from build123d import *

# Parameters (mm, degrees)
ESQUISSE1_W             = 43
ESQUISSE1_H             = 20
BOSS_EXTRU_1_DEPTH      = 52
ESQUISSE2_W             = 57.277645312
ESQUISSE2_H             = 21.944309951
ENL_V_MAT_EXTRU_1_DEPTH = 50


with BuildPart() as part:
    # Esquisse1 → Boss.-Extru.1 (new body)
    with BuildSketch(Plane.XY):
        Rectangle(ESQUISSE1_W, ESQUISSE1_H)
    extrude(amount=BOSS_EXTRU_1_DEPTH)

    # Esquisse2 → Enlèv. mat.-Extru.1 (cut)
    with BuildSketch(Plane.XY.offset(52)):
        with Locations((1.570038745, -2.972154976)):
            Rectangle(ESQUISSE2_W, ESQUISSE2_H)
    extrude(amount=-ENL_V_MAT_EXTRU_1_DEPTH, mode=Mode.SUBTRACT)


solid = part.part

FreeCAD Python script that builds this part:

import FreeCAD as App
import Part
import Sketcher


def add_polygon(sketch, points):
    """Adds a closed chain of lines whose ends are joined by coincident constraints."""
    first, n = sketch.GeometryCount, len(points)
    for a, b in zip(points, points[1:] + points[:1]):
        sketch.addGeometry(Part.LineSegment(App.Vector(*a, 0), App.Vector(*b, 0)), False)
    for i in range(n):
        sketch.addConstraint(Sketcher.Constraint("Coincident", first + i, 2, first + (i + 1) % n, 1))

doc = App.newDocument("Part")
body = doc.addObject("PartDesign::Body", "Body")

# Sketch on XY plane
sketch1 = doc.addObject("Sketcher::SketchObject", "Sketch")
body.addObject(sketch1)
sketch1.AttachmentSupport = (doc.XY_Plane, [""])
sketch1.MapMode = "FlatFace"
add_polygon(sketch1, [(-22, 10), (-22, -10), (22, -10), (22, 10)])  # lines 0-3
sketch1.addConstraint([
    Sketcher.Constraint("Vertical", 0),
    Sketcher.Constraint("Horizontal", 1),
    Sketcher.Constraint("Vertical", 2),
    Sketcher.Constraint("Horizontal", 3),
    Sketcher.Constraint("Symmetric", 0, 2, 2, 2, -1, 1),
    Sketcher.Constraint("DistanceX", 1, 1, 1, 2, 43.0),
    Sketcher.Constraint("DistanceY", 0, 2, 0, 1, 20.0),
])
pad1 = doc.addObject("PartDesign::Pad", "Pad")
body.addObject(pad1)
pad1.Profile = sketch1
pad1.Length = 52

# Sketch on XY plane
sketch2 = doc.addObject("Sketcher::SketchObject", "Sketch001")
body.addObject(sketch2)
sketch2.AttachmentSupport = (doc.XY_Plane, [""])
sketch2.MapMode = "FlatFace"
sketch2.AttachmentOffset = App.Placement(App.Vector(0, 0, 52), App.Rotation())
add_polygon(sketch2, [(-27, 8), (-27, -14), (30, -14), (30, 8)])  # lines 0-3
sketch2.addConstraint([
    Sketcher.Constraint("Vertical", 0),
    Sketcher.Constraint("Horizontal", 1),
    Sketcher.Constraint("Vertical", 2),
    Sketcher.Constraint("Horizontal", 3),
    Sketcher.Constraint("DistanceY", -1, 1, 2, 2, 8.0),
    Sketcher.Constraint("DistanceY", 0, 2, 0, 1, 21.94431),
    Sketcher.Constraint("DistanceX", 1, 1, 1, 2, 57.277645),
    Sketcher.Constraint("DistanceX", -1, 1, 1, 2, 30.208861),
])
pocket1 = doc.addObject("PartDesign::Pocket", "Pocket")
body.addObject(pocket1)
pocket1.Profile = sketch2
pocket1.Length = 50

doc.recompute()
